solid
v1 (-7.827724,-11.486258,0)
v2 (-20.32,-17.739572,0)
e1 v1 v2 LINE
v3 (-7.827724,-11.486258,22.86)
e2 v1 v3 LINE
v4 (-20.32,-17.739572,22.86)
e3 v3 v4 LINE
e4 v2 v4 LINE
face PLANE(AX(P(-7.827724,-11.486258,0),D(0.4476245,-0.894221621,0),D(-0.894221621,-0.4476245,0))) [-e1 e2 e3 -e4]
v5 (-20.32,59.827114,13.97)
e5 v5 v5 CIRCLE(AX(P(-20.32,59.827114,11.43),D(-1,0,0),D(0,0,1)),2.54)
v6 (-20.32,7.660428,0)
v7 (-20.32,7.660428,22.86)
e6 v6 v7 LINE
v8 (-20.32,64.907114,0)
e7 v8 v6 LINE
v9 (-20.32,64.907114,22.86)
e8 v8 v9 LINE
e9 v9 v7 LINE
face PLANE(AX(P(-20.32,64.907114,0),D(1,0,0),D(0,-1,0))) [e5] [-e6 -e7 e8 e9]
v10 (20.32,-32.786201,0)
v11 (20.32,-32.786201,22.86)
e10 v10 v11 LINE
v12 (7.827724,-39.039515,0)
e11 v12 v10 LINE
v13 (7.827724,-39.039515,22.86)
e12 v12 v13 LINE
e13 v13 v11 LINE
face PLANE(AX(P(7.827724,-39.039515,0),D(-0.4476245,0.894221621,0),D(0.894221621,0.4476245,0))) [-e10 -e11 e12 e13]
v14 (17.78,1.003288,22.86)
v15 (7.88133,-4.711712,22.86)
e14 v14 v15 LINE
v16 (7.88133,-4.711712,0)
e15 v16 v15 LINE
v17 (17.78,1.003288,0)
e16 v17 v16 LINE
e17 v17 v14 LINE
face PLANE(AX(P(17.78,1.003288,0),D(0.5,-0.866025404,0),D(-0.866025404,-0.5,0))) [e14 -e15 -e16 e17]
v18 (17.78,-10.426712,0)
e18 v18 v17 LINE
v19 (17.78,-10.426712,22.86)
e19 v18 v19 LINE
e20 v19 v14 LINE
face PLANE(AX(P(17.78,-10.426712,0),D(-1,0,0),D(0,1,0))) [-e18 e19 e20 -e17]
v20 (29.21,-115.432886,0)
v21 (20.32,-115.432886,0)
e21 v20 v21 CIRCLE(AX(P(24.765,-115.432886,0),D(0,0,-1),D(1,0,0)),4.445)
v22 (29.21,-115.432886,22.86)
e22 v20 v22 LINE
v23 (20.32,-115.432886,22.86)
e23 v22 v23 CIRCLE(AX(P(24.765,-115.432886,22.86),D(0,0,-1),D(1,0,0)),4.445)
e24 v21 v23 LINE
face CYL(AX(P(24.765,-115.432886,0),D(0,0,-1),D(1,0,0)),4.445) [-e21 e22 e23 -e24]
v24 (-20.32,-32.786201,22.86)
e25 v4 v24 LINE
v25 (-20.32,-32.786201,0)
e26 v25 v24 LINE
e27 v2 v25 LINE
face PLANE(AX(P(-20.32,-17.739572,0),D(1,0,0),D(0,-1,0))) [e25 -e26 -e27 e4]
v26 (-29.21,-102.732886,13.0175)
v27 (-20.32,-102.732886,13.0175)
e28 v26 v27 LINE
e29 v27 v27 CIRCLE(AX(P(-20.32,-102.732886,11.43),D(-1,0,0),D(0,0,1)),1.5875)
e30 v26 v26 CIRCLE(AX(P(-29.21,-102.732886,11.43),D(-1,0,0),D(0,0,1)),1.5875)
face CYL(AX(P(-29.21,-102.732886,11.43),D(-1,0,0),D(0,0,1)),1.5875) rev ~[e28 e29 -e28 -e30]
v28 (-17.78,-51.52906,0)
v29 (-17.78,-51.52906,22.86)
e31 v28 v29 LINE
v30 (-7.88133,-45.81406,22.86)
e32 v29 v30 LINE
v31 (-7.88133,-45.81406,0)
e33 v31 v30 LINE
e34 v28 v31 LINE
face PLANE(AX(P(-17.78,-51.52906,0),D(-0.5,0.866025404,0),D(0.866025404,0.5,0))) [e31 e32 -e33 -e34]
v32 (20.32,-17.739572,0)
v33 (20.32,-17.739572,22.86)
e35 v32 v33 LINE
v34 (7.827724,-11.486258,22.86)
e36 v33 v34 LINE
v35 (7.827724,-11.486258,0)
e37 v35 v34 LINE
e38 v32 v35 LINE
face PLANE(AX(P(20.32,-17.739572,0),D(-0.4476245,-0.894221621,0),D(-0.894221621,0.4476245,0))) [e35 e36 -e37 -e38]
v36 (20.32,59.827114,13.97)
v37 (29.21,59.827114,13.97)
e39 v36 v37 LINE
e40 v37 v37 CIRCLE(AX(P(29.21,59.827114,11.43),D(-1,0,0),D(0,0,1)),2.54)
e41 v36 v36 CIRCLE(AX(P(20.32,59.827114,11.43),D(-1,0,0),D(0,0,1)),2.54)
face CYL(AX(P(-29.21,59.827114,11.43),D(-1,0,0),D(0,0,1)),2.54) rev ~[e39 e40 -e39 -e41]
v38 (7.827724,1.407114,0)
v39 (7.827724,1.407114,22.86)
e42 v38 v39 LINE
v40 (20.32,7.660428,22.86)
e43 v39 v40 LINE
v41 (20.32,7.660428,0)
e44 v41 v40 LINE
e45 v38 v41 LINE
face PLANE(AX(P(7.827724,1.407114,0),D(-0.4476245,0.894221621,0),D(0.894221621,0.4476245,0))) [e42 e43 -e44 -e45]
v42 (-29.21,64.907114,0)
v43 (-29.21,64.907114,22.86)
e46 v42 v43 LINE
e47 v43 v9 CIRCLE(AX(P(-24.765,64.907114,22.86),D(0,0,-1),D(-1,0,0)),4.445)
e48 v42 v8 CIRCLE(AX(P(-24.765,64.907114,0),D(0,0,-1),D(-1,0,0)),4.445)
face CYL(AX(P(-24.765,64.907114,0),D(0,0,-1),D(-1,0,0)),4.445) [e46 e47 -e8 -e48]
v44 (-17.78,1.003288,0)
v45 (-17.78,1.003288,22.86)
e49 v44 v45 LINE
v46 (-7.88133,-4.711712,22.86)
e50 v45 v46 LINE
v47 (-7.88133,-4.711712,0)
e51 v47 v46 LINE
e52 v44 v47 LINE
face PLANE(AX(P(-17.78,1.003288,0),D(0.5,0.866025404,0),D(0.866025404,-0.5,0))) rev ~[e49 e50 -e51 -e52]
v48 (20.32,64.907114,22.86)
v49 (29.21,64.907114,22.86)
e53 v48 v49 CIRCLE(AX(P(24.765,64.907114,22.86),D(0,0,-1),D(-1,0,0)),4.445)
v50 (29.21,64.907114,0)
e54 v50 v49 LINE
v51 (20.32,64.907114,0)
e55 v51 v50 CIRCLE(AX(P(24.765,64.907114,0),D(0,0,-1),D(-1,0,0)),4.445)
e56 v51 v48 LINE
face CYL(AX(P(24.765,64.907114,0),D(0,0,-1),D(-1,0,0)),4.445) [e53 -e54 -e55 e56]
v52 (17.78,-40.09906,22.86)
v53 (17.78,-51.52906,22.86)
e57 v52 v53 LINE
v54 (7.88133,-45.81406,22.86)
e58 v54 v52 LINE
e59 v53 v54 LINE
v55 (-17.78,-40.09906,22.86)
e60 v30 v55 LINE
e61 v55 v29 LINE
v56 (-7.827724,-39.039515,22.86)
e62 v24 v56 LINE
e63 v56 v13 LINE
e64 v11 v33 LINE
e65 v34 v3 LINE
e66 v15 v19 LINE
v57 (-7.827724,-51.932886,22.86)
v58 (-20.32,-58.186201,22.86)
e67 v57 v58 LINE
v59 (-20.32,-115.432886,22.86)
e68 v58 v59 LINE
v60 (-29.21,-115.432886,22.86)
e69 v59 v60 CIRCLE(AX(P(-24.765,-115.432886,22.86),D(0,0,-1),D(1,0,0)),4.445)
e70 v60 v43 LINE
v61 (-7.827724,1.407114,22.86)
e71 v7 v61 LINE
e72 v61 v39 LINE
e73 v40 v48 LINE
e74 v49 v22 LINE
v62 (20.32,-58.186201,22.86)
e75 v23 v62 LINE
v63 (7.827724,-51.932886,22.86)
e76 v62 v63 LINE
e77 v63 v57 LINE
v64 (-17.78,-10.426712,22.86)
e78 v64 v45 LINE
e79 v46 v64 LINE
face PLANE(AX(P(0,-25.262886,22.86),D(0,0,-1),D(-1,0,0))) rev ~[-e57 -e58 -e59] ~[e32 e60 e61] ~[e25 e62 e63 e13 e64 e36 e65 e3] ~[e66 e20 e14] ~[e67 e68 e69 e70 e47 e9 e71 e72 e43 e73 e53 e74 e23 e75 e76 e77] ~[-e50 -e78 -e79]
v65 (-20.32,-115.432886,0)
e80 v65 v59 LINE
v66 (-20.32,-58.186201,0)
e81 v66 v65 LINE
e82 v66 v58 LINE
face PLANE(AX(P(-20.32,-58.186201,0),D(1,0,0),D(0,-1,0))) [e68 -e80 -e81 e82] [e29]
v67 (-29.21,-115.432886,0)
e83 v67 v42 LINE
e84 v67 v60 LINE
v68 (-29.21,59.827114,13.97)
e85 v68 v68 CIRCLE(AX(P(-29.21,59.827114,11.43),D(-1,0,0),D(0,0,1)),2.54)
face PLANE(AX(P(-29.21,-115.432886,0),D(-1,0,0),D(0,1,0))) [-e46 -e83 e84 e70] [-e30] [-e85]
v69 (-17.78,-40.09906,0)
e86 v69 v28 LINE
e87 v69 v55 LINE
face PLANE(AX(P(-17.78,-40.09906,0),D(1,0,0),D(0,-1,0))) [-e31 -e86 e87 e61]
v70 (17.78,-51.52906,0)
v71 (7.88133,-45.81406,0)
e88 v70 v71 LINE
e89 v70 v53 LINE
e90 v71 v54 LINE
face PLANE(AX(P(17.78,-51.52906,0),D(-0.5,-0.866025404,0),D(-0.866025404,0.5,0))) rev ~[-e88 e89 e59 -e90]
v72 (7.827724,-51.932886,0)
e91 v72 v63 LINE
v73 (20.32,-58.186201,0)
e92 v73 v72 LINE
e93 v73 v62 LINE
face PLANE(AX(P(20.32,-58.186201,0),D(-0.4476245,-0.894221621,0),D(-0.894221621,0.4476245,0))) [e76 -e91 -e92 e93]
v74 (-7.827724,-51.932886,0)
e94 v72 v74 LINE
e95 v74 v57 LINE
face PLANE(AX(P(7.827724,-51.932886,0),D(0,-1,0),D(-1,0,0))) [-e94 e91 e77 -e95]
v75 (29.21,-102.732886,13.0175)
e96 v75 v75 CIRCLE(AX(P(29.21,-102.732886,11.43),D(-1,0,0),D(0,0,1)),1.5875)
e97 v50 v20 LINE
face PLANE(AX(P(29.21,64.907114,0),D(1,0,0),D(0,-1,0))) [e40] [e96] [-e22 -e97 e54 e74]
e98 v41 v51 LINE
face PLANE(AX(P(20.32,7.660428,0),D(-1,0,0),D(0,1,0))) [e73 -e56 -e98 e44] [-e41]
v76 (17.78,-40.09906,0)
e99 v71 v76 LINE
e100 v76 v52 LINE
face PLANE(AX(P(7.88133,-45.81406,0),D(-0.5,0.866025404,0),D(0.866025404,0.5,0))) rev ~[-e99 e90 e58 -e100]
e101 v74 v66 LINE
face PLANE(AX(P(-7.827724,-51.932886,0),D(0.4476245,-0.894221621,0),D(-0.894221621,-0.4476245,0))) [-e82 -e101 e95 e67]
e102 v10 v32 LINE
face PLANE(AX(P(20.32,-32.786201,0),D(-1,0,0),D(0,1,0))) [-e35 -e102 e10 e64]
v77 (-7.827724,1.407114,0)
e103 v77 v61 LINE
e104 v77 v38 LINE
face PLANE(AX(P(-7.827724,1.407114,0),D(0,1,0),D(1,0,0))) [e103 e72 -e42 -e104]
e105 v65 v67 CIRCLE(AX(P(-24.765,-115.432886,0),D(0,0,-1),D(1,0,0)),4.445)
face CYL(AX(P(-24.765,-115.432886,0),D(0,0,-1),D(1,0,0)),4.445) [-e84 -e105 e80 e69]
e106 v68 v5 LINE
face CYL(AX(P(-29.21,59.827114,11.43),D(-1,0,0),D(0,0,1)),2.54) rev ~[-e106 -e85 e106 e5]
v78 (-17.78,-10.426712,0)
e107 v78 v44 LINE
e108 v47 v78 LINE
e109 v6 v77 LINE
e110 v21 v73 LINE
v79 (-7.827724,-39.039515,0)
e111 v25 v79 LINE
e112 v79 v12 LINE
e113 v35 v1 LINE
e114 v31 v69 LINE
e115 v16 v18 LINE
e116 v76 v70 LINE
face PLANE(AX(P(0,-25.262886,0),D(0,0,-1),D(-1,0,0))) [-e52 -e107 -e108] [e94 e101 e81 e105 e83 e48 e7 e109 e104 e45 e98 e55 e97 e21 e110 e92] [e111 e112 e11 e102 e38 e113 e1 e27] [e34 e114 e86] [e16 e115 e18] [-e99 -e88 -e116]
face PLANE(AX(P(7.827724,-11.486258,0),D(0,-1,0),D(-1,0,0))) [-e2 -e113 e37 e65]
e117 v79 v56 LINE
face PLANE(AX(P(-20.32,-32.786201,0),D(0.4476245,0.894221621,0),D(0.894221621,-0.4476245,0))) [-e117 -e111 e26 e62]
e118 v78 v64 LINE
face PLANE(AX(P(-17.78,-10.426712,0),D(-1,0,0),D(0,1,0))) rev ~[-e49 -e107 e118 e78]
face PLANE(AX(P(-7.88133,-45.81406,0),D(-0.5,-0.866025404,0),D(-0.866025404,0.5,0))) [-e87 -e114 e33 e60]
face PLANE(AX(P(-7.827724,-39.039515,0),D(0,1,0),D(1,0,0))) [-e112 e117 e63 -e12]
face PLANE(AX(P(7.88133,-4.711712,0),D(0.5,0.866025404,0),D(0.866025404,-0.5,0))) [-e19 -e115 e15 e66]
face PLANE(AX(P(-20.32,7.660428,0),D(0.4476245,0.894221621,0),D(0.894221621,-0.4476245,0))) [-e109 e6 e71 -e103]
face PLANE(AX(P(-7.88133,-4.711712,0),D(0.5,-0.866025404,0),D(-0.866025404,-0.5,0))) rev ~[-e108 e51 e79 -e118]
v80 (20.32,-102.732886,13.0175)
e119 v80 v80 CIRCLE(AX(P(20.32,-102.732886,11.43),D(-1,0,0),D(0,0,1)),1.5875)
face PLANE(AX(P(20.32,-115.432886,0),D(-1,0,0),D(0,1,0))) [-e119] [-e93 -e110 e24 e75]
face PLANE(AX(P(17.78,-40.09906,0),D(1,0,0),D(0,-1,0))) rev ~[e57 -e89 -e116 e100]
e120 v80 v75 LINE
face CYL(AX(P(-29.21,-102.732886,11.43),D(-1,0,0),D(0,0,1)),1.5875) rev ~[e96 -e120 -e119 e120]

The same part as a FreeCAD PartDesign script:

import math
import FreeCAD as App
import Part
import Sketcher
Q = App.Units.Quantity


def add_polygon(sketch, points):
    """Adds a closed chain of lines whose ends are joined by coincident constraints."""
    first, n = sketch.GeometryCount, len(points)
    for a, b in zip(points, points[1:] + points[:1]):
        sketch.addGeometry(Part.LineSegment(App.Vector(*a, 0), App.Vector(*b, 0)), False)
    for i in range(n):
        sketch.addConstraint(Sketcher.Constraint("Coincident", first + i, 2, first + (i + 1) % n, 1))

doc = App.newDocument("Part")
body = doc.addObject("PartDesign::Body", "Body")

sketch1 = body.newObject("Sketcher::SketchObject", "Sketch")
sketch1.AttachmentSupport = (doc.getObject("XY_Plane"), [""])
sketch1.MapMode = "FlatFace"
sketch1.addGeometry(Part.LineSegment(App.Vector(-20.3, 7.7, 0), App.Vector(-20.3, 64.9, 0)), False)
sketch1.addGeometry(Part.ArcOfCircle(Part.Circle(App.Vector(-24.8, 64.9, 0), App.Vector(0, 0, 1), 4.4), math.radians(0), math.radians(180)), False)
sketch1.addGeometry(Part.LineSegment(App.Vector(-29.2, 64.9, 0), App.Vector(-29.2, -115.4, 0)), False)
sketch1.addGeometry(Part.ArcOfCircle(Part.Circle(App.Vector(-24.8, -115.4, 0), App.Vector(0, 0, 1), 4.4), math.radians(180), math.radians(360)), False)
sketch1.addGeometry(Part.LineSegment(App.Vector(-20.3, -115.4, 0), App.Vector(-20.3, -58.2, 0)), False)
sketch1.addGeometry(Part.LineSegment(App.Vector(-20.3, -58.2, 0), App.Vector(-7.8, -51.9, 0)), False)
sketch1.addGeometry(Part.LineSegment(App.Vector(-7.8, -51.9, 0), App.Vector(7.8, -51.9, 0)), False)
sketch1.addGeometry(Part.LineSegment(App.Vector(7.8, -51.9, 0), App.Vector(20.3, -58.2, 0)), False)
sketch1.addGeometry(Part.LineSegment(App.Vector(20.3, -58.2, 0), App.Vector(20.3, -115.4, 0)), False)
sketch1.addGeometry(Part.ArcOfCircle(Part.Circle(App.Vector(24.8, -115.4, 0), App.Vector(0, 0, 1), 4.4), math.radians(180), math.radians(360)), False)
sketch1.addGeometry(Part.LineSegment(App.Vector(29.2, -115.4, 0), App.Vector(29.2, 64.9, 0)), False)
sketch1.addGeometry(Part.ArcOfCircle(Part.Circle(App.Vector(24.8, 64.9, 0), App.Vector(0, 0, 1), 4.4), math.radians(0), math.radians(180)), False)
sketch1.addGeometry(Part.LineSegment(App.Vector(20.3, 64.9, 0), App.Vector(20.3, 7.7, 0)), False)
sketch1.addGeometry(Part.LineSegment(App.Vector(20.3, 7.7, 0), App.Vector(7.8, 1.4, 0)), False)
sketch1.addGeometry(Part.LineSegment(App.Vector(7.8, 1.4, 0), App.Vector(-7.8, 1.4, 0)), False)
sketch1.addGeometry(Part.LineSegment(App.Vector(-7.8, 1.4, 0), App.Vector(-20.3, 7.7, 0)), False)
add_polygon(sketch1, [(17.8, -51.5), (7.9, -45.8), (17.8, -40.1)])
add_polygon(sketch1, [(-17.8, -40.1), (-7.9, -45.8), (-17.8, -51.5)])
add_polygon(sketch1, [(-20.3, -32.8), (-20.3, -17.7), (-7.8, -11.5), (7.8, -11.5), (20.3, -17.7), (20.3, -32.8), (7.8, -39), (-7.8, -39)])
add_polygon(sketch1, [(17.8, -10.4), (7.9, -4.7), (17.8, 1)])
add_polygon(sketch1, [(-17.8, 1), (-7.9, -4.7), (-17.8, -10.4)])
sketch1.addConstraint(Sketcher.Constraint("Tangent", 0, 2, 1, 1))
sketch1.addConstraint(Sketcher.Constraint("Tangent", 1, 2, 2, 1))
sketch1.addConstraint(Sketcher.Constraint("Tangent", 2, 2, 3, 1))
sketch1.addConstraint(Sketcher.Constraint("Tangent", 3, 2, 4, 1))
sketch1.addConstraint(Sketcher.Constraint("Coincident", 4, 2, 5, 1))
sketch1.addConstraint(Sketcher.Constraint("Coincident", 5, 2, 6, 1))
sketch1.addConstraint(Sketcher.Constraint("Coincident", 6, 2, 7, 1))
sketch1.addConstraint(Sketcher.Constraint("Coincident", 7, 2, 8, 1))
sketch1.addConstraint(Sketcher.Constraint("Tangent", 8, 2, 9, 1))
sketch1.addConstraint(Sketcher.Constraint("Tangent", 9, 2, 10, 1))
sketch1.addConstraint(Sketcher.Constraint("Tangent", 10, 2, 11, 1))
sketch1.addConstraint(Sketcher.Constraint("Tangent", 11, 2, 12, 1))
sketch1.addConstraint(Sketcher.Constraint("Coincident", 12, 2, 13, 1))
sketch1.addConstraint(Sketcher.Constraint("Coincident", 13, 2, 14, 1))
sketch1.addConstraint(Sketcher.Constraint("Coincident", 14, 2, 15, 1))
sketch1.addConstraint(Sketcher.Constraint("Coincident", 15, 2, 0, 1))
sketch1.addConstraint(Sketcher.Constraint("Vertical", 0))
sketch1.addConstraint(Sketcher.Constraint("Vertical", 2))
sketch1.addConstraint(Sketcher.Constraint("Vertical", 4))
sketch1.addConstraint(Sketcher.Constraint("Horizontal", 6))
sketch1.addConstraint(Sketcher.Constraint("Vertical", 8))
sketch1.addConstraint(Sketcher.Constraint("Vertical", 10))
sketch1.addConstraint(Sketcher.Constraint("Vertical", 12))
sketch1.addConstraint(Sketcher.Constraint("Horizontal", 14))
sketch1.addConstraint(Sketcher.Constraint("Vertical", 18))
sketch1.addConstraint(Sketcher.Constraint("Vertical", 21))
sketch1.addConstraint(Sketcher.Constraint("Vertical", 22))
sketch1.addConstraint(Sketcher.Constraint("Horizontal", 24))
sketch1.addConstraint(Sketcher.Constraint("Vertical", 26))
sketch1.addConstraint(Sketcher.Constraint("Horizontal", 28))
sketch1.addConstraint(Sketcher.Constraint("Vertical", 32))
sketch1.addConstraint(Sketcher.Constraint("Vertical", 35))
sketch1.addConstraint(Sketcher.Constraint("Equal", 1, 3))
sketch1.addConstraint(Sketcher.Constraint("Equal", 3, 9))
sketch1.addConstraint(Sketcher.Constraint("Equal", 9, 11))
sketch1.addConstraint(Sketcher.Constraint("Symmetric", 3, 3, 9, 3, -2))
sketch1.addConstraint(Sketcher.Constraint("Symmetric", 16, 2, 19, 2, -2))
sketch1.addConstraint(Sketcher.Constraint("Symmetric", 18, 2, 20, 2, -2))
sketch1.addConstraint(Sketcher.Constraint("Symmetric", 22, 2, 25, 2, -2))
sketch1.addConstraint(Sketcher.Constraint("Symmetric", 30, 2, 33, 2, -2))
sketch1.addConstraint(Sketcher.Constraint("Symmetric", 32, 2, 34, 2, -2))
sketch1.addConstraint(Sketcher.Constraint("Parallel", 5, 13))
sketch1.addConstraint(Sketcher.Constraint("Parallel", 7, 15))
sketch1.addConstraint(Sketcher.Constraint("Parallel", 16, 19))
sketch1.addConstraint(Sketcher.Constraint("Parallel", 17, 20))
sketch1.addConstraint(Sketcher.Constraint("Parallel", 13, 23))
sketch1.addConstraint(Sketcher.Constraint("Parallel", 15, 25))
sketch1.addConstraint(Sketcher.Constraint("Parallel", 23, 27))
sketch1.addConstraint(Sketcher.Constraint("Parallel", 25, 29))
sketch1.addConstraint(Sketcher.Constraint("Parallel", 19, 30))
sketch1.addConstraint(Sketcher.Constraint("Parallel", 20, 31))
sketch1.addConstraint(Sketcher.Constraint("Parallel", 30, 33))
sketch1.addConstraint(Sketcher.Constraint("Horizontal", 1, 3, 11, 3))
sketch1.addConstraint(Sketcher.Constraint("Horizontal", 4, 2, 7, 2))
sketch1.addConstraint(Sketcher.Constraint("Horizontal", 12, 2, 15, 2))
sketch1.addConstraint(Sketcher.Constraint("Horizontal", 26, 2, 29, 2))
sketch1.addConstraint(Sketcher.Constraint("Vertical", 6, 2, 13, 2))
sketch1.addConstraint(Sketcher.Constraint("Vertical", 5, 2, 14, 2))
sketch1.addConstraint(Sketcher.Constraint("Vertical", 15, 2, 22, 2))
sketch1.addConstraint(Sketcher.Constraint("Vertical", 14, 2, 23, 2))
sketch1.addConstraint(Sketcher.Constraint("Vertical", 24, 2, 27, 2))
sketch1.addConstraint(Sketcher.Constraint("Vertical", 16, 2, 30, 2))
sketch1.addConstraint(Sketcher.Constraint("Vertical", 18, 2, 31, 2))
sketch1.addConstraint(Sketcher.Constraint("Equal", 0, 4))
sketch1.addConstraint(Sketcher.Constraint("DistanceY", 2, 2, 2, 1, Q("7.1 in")))
sketch1.addConstraint(Sketcher.Constraint("Angle", 16, Q("150 deg")))
sketch1.addConstraint(Sketcher.Constraint("Radius", 1, Q("0.175 in")))
sketch1.addConstraint(Sketcher.Constraint("DistanceY", 22, 2, 15, 2, Q("1 in")))
sketch1.addConstraint(Sketcher.Constraint("DistanceY", 18, 2, 18, 1, Q("0.45 in")))
sketch1.addConstraint(Sketcher.Constraint("DistanceX", 0, 2, -1, 1, Q("0.8 in")))
sketch1.addConstraint(Sketcher.Constraint("DistanceX", -1, 1, 17, 2, Q("0.7 in")))
sketch1.addConstraint(Sketcher.Constraint("DistanceY", 3, 2, 5, 2, Q("2.5 in")))
sketch1.addConstraint(Sketcher.Constraint("Distance", 5, Q("0.55 in")))
sketch1.addConstraint(Sketcher.Constraint("DistanceY", 22, 1, 22, 2, 15.046629))
sketch1.addConstraint(Sketcher.Constraint("DistanceY", 4, 2, -1, 1, 58.186201))
sketch1.addConstraint(Sketcher.Constraint("DistanceY", 26, 2, -1, 1, 32.786201))
sketch1.addConstraint(Sketcher.Constraint("DistanceY", 16, 2, -1, 1, 45.81406))
sketch1.addConstraint(Sketcher.Constraint("DistanceY", 30, 2, 12, 2, 12.37214))
pad1 = body.newObject("PartDesign::Pad", "Pad")
pad1.Profile = sketch1
pad1.Length = Q("0.9 in")

sketch2 = body.newObject("Sketcher::SketchObject", "Sketch001")
sketch2.AttachmentSupport = (doc.getObject("YZ_Plane"), [""])
sketch2.MapMode = "FlatFace"
sketch2.AttachmentOffset = App.Placement(App.Vector(0, 0, -1.15 * 25.4), App.Rotation())
sketch2.addGeometry(Part.Circle(App.Vector(-102.7, 11.4, 0), App.Vector(0, 0, 1), 1.6), False)
sketch2.addConstraint(Sketcher.Constraint("Diameter", 0, Q("0.125 in")))
sketch2.addConstraint(Sketcher.Constraint("DistanceY", -1, 1, 0, 3, Q("0.45 in")))
sketch2.addConstraint(Sketcher.Constraint("DistanceX", 0, 3, -1, 1, 102.732886))
pocket1 = body.newObject("PartDesign::Pocket", "Pocket")
pocket1.Profile = sketch2
pocket1.Type = "ThroughAll"
pocket1.Reversed = True

sketch3 = body.newObject("Sketcher::SketchObject", "Sketch002")
sketch3.AttachmentSupport = (doc.getObject("YZ_Plane"), [""])
sketch3.MapMode = "FlatFace"
sketch3.AttachmentOffset = App.Placement(App.Vector(0, 0, -1.15 * 25.4), App.Rotation())
sketch3.addGeometry(Part.Circle(App.Vector(59.8, 11.4, 0), App.Vector(0, 0, 1), 2.5), False)
sketch3.addConstraint(Sketcher.Constraint("Diameter", 0, Q("0.2 in")))
sketch3.addConstraint(Sketcher.Constraint("DistanceY", -1, 1, 0, 3, Q("0.45 in")))
sketch3.addConstraint(Sketcher.Constraint("DistanceX", -1, 1, 0, 3, 59.827114))
pocket2 = body.newObject("PartDesign::Pocket", "Pocket001")
pocket2.Profile = sketch3
pocket2.Type = "ThroughAll"
pocket2.Reversed = True

doc.recompute()
